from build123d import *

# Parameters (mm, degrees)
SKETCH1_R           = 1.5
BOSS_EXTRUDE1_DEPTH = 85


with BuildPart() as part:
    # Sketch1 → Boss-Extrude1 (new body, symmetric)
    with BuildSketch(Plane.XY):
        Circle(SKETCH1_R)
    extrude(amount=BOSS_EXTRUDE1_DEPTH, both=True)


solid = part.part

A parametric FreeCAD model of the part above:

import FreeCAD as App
import Part
import Sketcher
from FreeCAD import Vector

doc = App.newDocument("Part")
body = doc.addObject("PartDesign::Body", "Body")

# Sketch on XY plane
sketch1 = body.newObject("Sketcher::SketchObject", "Sketch")
sketch1.AttachmentSupport = (doc.getObject("XY_Plane"), [""])
sketch1.MapMode = "FlatFace"
sketch1.addGeometry(Part.Circle(Vector(0, 0, 0), Vector(0, 0, 1), 1.5), False)
sketch1.addConstraint([
    Sketcher.Constraint("Coincident", 0, 3, -1, 1),
    Sketcher.Constraint("Diameter", 0, 3.0),
])
pad1 = body.newObject("PartDesign::Pad", "Pad")
pad1.Profile = sketch1
pad1.Length = 170
pad1.Midplane = True

doc.recompute()
